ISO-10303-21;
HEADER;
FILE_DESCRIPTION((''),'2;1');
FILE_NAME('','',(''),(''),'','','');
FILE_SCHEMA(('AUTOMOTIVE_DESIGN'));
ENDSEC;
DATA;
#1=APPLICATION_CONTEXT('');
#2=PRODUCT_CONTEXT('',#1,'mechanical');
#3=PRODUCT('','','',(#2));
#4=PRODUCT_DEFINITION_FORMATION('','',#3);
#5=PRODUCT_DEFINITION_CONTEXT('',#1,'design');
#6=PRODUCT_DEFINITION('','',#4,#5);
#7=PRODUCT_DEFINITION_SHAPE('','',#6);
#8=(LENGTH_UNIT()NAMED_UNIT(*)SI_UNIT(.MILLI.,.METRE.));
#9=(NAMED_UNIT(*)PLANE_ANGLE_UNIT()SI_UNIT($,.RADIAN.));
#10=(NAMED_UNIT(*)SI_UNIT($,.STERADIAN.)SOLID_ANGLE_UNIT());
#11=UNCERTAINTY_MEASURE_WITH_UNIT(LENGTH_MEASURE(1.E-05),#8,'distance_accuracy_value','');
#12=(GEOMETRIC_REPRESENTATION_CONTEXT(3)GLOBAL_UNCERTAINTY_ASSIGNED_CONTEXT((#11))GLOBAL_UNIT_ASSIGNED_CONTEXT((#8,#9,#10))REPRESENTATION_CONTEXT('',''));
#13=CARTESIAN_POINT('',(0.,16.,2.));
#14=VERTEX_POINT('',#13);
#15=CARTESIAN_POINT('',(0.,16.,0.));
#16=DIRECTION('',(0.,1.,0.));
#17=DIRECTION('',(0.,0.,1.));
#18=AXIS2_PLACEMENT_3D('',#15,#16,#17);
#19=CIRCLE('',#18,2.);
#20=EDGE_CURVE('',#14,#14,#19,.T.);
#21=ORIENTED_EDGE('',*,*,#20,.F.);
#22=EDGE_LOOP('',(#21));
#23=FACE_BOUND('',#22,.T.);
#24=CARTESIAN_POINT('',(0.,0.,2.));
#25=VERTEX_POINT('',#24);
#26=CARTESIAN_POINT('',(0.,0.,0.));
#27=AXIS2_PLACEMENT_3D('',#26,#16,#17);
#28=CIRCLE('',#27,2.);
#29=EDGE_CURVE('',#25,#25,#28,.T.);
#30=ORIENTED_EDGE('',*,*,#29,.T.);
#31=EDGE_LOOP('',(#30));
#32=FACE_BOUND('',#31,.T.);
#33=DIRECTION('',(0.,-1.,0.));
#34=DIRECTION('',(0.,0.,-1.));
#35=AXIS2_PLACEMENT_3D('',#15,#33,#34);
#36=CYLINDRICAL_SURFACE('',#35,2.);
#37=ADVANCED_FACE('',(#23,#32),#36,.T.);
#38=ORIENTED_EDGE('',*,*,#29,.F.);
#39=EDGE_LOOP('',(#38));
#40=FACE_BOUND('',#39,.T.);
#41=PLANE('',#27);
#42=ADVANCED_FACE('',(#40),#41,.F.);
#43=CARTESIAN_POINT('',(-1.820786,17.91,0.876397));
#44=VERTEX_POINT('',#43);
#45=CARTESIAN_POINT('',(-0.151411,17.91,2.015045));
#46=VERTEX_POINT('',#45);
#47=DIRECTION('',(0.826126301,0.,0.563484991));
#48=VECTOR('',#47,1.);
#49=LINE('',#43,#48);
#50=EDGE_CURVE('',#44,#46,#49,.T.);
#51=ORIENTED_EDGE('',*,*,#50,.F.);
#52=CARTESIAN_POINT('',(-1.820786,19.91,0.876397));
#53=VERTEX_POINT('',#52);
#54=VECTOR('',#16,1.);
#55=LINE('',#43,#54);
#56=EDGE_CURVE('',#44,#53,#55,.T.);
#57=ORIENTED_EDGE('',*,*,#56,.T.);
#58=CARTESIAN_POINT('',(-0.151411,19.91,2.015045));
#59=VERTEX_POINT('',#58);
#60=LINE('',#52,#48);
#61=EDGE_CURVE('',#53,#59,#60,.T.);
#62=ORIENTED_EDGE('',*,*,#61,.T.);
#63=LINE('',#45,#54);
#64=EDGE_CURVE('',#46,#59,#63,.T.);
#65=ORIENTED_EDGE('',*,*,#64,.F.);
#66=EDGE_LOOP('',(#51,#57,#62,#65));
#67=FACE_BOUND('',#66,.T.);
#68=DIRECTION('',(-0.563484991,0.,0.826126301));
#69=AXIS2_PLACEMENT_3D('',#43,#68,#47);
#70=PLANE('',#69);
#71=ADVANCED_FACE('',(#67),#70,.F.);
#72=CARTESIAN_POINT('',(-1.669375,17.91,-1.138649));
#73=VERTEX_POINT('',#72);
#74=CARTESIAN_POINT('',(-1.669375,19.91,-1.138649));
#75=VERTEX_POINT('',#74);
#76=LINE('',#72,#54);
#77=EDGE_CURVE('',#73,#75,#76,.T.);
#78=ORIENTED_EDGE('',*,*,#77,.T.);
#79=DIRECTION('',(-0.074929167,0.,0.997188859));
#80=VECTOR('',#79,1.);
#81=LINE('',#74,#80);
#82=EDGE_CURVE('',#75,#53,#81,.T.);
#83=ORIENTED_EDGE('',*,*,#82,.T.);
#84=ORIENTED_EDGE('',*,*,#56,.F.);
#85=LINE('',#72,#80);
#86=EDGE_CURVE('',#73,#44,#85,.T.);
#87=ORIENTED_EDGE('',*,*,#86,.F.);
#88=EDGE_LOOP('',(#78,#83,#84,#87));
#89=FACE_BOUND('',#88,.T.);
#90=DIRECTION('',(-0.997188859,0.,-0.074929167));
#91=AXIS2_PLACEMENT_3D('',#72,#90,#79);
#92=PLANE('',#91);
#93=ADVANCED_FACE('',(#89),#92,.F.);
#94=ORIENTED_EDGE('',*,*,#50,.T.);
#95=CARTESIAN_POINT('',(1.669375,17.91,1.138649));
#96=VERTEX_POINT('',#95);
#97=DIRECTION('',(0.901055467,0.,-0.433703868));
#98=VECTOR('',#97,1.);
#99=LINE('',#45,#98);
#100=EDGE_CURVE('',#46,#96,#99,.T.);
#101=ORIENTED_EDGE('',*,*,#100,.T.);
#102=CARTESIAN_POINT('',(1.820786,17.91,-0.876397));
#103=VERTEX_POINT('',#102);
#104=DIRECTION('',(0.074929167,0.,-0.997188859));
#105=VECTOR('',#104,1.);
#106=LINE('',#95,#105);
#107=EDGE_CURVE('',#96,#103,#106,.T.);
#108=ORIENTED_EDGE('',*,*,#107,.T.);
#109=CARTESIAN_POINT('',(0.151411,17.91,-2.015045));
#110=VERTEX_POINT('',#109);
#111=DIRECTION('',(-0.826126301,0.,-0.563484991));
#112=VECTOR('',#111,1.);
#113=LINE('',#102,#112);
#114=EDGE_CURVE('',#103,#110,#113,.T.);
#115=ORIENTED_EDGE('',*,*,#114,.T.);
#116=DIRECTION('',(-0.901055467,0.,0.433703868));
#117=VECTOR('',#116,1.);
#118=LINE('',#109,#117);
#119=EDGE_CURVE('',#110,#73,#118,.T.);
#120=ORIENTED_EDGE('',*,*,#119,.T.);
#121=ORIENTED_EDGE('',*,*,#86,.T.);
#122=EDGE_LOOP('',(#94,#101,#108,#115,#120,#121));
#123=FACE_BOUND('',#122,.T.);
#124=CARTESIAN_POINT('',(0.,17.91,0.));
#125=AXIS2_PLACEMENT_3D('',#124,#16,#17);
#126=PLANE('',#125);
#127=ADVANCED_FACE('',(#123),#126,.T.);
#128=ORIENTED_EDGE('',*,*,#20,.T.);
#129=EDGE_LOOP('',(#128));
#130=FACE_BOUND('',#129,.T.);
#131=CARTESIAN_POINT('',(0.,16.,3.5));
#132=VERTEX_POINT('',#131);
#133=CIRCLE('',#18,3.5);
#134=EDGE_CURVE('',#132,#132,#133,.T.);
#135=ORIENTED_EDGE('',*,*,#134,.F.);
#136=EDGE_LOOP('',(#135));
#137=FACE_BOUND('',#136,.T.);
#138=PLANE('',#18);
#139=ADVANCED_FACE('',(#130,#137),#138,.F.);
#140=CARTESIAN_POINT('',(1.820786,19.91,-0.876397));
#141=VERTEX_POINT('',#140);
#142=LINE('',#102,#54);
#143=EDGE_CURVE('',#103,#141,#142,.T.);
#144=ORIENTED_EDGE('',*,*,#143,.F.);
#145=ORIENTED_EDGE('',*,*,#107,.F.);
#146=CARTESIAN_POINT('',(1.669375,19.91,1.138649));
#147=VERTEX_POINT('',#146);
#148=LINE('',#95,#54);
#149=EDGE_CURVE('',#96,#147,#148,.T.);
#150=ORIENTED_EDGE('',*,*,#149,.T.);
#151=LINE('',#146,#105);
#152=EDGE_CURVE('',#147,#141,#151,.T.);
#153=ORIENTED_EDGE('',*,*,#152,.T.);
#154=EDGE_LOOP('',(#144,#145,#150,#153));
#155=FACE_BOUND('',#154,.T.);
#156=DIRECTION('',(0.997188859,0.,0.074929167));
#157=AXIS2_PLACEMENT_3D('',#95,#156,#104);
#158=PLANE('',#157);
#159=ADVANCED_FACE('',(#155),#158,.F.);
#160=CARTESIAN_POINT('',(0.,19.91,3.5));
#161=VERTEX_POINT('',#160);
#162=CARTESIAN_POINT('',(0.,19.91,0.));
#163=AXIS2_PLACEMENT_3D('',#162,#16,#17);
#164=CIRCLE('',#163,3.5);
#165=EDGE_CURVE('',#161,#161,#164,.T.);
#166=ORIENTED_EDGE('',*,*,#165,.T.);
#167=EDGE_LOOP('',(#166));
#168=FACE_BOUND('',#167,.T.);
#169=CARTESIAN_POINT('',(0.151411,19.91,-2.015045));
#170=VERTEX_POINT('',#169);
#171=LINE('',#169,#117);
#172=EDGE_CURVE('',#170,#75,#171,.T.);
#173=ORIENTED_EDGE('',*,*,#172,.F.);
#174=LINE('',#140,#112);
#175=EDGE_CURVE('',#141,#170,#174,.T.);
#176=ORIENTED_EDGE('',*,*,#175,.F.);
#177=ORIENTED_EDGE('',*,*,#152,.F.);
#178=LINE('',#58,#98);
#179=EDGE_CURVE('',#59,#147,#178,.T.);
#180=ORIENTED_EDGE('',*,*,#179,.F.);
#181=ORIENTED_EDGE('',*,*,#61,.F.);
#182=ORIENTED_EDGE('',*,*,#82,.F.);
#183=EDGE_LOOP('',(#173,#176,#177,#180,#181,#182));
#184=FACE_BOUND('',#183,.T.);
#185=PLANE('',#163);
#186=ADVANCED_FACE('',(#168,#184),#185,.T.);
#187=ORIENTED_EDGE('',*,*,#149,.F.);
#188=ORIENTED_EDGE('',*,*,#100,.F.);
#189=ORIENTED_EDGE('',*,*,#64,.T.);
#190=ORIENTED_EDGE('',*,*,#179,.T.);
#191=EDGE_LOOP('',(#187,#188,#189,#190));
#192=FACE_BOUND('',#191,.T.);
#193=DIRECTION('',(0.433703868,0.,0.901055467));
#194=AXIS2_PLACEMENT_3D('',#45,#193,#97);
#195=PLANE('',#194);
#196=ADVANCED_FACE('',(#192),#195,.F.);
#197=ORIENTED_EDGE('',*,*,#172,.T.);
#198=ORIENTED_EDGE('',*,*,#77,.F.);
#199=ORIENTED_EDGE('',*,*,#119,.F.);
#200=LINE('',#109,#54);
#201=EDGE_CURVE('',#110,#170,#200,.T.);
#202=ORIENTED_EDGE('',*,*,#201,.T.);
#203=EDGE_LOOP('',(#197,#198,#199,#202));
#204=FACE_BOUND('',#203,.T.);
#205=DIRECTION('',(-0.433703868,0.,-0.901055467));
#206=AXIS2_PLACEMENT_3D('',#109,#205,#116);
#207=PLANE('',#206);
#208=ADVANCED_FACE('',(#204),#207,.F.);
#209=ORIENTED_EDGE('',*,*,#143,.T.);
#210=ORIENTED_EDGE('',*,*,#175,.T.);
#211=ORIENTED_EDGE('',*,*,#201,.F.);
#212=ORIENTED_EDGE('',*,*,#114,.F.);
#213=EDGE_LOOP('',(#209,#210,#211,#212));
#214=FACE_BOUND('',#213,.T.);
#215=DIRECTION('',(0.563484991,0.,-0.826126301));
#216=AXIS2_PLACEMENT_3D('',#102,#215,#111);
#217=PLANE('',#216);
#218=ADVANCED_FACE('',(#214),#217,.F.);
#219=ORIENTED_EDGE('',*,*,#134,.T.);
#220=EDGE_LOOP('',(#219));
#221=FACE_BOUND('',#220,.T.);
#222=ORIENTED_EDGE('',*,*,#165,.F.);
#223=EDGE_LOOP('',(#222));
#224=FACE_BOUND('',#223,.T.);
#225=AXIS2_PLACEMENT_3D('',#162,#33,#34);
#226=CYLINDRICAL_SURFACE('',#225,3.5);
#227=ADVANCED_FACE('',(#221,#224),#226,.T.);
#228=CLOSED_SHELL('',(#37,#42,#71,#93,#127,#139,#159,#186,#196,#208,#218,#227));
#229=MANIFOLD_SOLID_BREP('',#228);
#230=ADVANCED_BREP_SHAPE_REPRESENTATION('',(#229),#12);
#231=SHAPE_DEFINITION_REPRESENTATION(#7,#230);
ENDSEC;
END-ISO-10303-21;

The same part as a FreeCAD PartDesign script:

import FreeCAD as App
import Part
import Sketcher

V = App.Vector

doc = App.newDocument("Part")
body = doc.addObject("PartDesign::Body", "Body")

# Sketch on XZ plane
sketch1 = body.newObject("Sketcher::SketchObject", "Sketch")
sketch1.AttachmentSupport = (doc.getObject("XZ_Plane"), [""])
sketch1.MapMode = "FlatFace"
sketch1.addGeometry(Part.Circle(V(0, 0, 0), V(0, 0, 1), 2), False)
sketch1.addConstraint([
    Sketcher.Constraint("Coincident", 0, 3, -1, 1),
    Sketcher.Constraint("Diameter", 0, 4.0),
])
pad1 = body.newObject("PartDesign::Pad", "Pad")
pad1.Profile = sketch1
pad1.Length = 16
pad1.Reversed = True

# Sketch on XZ plane
sketch2 = body.newObject("Sketcher::SketchObject", "Sketch001")
sketch2.AttachmentSupport = (doc.getObject("XZ_Plane"), [""])
sketch2.MapMode = "FlatFace"
sketch2.AttachmentOffset = App.Placement(V(0, 0, -16), App.Rotation())
sketch2.addGeometry(Part.Circle(V(0, 0, 0), V(0, 0, 1), 3.5), False)
sketch2.addConstraint([
    Sketcher.Constraint("Coincident", 0, 3, -1, 1),
    Sketcher.Constraint("Diameter", 0, 7.0),
])
pad2 = body.newObject("PartDesign::Pad", "Pad001")
pad2.Profile = sketch2
pad2.Length = 3.91
pad2.Reversed = True

# Sketch on XZ plane
sketch3 = body.newObject("Sketcher::SketchObject", "Sketch002")
sketch3.AttachmentSupport = (doc.getObject("XZ_Plane"), [""])
sketch3.MapMode = "FlatFace"
sketch3.AttachmentOffset = App.Placement(V(0, 0, -19.91), App.Rotation())
sketch3.addGeometry([
    Part.LineSegment(V(1.7, 1.1, 0), V(1.8, -0.9, 0)),  # 0
    Part.LineSegment(V(1.8, -0.9, 0), V(0.2, -2, 0)),  # 1
    Part.LineSegment(V(0.2, -2, 0), V(-1.7, -1.1, 0)),  # 2
    Part.LineSegment(V(-1.7, -1.1, 0), V(-1.8, 0.9, 0)),  # 3
    Part.LineSegment(V(-1.8, 0.9, 0), V(-0.2, 2, 0)),  # 4
    Part.LineSegment(V(-0.2, 2, 0), V(1.7, 1.1, 0)),  # 5
], False)
sketch3.addConstraint([
    Sketcher.Constraint("Coincident", 0, 2, 1, 1),
    Sketcher.Constraint("Coincident", 1, 2, 2, 1),
    Sketcher.Constraint("Coincident", 2, 2, 3, 1),
    Sketcher.Constraint("Coincident", 3, 2, 4, 1),
    Sketcher.Constraint("Coincident", 4, 2, 5, 1),
    Sketcher.Constraint("Coincident", 5, 2, 0, 1),
    Sketcher.Constraint("Symmetric", 0, 2, 3, 2, -1, 1),
    Sketcher.Constraint("Symmetric", 1, 2, 4, 2, -1, 1),
    Sketcher.Constraint("Symmetric", 2, 2, 5, 2, -1, 1),
    Sketcher.Constraint("Equal", 0, 1),
    Sketcher.Constraint("Equal", 1, 2),
    Sketcher.Constraint("DistanceX", -1, 1, 1, 2, 0.151411),
    Sketcher.Constraint("DistanceY", 2, 2, -1, 1, 1.138649),
    Sketcher.Constraint("DistanceY", 1, 2, 0, 2, 1.138649),
    Sketcher.Constraint("DistanceX", 2, 2, 0, 2, 3.490161),
])
pocket1 = body.newObject("PartDesign::Pocket", "Pocket")
pocket1.Profile = sketch3
pocket1.Length = 2
pocket1.Reversed = True

doc.recompute()
